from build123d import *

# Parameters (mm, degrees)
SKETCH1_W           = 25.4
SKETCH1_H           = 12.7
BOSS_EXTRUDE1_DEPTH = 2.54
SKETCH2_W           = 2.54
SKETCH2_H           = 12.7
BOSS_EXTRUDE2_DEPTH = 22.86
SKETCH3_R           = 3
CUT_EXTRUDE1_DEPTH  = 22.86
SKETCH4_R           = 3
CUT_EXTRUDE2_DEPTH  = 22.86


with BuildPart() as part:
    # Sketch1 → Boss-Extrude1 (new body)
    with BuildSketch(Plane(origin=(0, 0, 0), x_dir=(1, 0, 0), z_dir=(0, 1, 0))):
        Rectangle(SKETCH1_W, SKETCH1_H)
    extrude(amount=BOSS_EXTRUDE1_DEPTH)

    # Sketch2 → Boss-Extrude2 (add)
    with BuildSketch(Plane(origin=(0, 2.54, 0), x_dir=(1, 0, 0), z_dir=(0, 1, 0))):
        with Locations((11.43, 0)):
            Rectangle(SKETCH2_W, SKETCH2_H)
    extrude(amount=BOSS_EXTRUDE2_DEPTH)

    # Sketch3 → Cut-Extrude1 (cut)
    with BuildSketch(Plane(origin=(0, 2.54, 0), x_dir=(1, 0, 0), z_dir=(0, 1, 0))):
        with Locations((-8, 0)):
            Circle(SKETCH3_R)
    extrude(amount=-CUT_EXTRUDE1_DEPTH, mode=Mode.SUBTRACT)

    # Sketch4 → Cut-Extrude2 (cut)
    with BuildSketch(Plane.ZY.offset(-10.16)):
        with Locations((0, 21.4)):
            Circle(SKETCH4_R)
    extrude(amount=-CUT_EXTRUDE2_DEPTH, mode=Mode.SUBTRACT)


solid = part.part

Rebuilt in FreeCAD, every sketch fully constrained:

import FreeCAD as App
import Part
import Sketcher

V = App.Vector
Q = App.Units.Quantity

doc = App.newDocument("Part")
body = doc.addObject("PartDesign::Body", "Body")

# Sketch on XZ plane
sketch1 = doc.addObject("Sketcher::SketchObject", "Sketch")
body.addObject(sketch1)
sketch1.AttachmentSupport = (doc.XZ_Plane, [""])
sketch1.MapMode = "FlatFace"
sketch1.addGeometry(Part.LineSegment(V(-12.7, -6.35, 0), V(-12.7, 6.35, 0)), False)
sketch1.addGeometry(Part.LineSegment(V(-12.7, 6.35, 0), V(12.7, 6.35, 0)), False)
sketch1.addGeometry(Part.LineSegment(V(12.7, 6.35, 0), V(12.7, -6.35, 0)), False)
sketch1.addGeometry(Part.LineSegment(V(12.7, -6.35, 0), V(-12.7, -6.35, 0)), False)
sketch1.addConstraint(Sketcher.Constraint("Coincident", 0, 2, 1, 1))
sketch1.addConstraint(Sketcher.Constraint("Coincident", 1, 2, 2, 1))
sketch1.addConstraint(Sketcher.Constraint("Coincident", 2, 2, 3, 1))
sketch1.addConstraint(Sketcher.Constraint("Coincident", 3, 2, 0, 1))
sketch1.addConstraint(Sketcher.Constraint("Vertical", 0))
sketch1.addConstraint(Sketcher.Constraint("Horizontal", 1))
sketch1.addConstraint(Sketcher.Constraint("Vertical", 2))
sketch1.addConstraint(Sketcher.Constraint("Horizontal", 3))
sketch1.addConstraint(Sketcher.Constraint("Symmetric", 0, 2, 2, 2, -1, 1))
sketch1.addConstraint(Sketcher.Constraint("DistanceX", 1, 1, 1, 2, Q("1 in")))
sketch1.addConstraint(Sketcher.Constraint("DistanceY", 0, 1, 0, 2, Q("0.5 in")))
pad1 = doc.addObject("PartDesign::Pad", "Pad")
body.addObject(pad1)
pad1.Profile = sketch1
pad1.Length = Q("0.1 in")
pad1.Reversed = True

# Sketch on XZ plane
sketch2 = doc.addObject("Sketcher::SketchObject", "Sketch001")
body.addObject(sketch2)
sketch2.AttachmentSupport = (doc.XZ_Plane, [""])
sketch2.MapMode = "FlatFace"
sketch2.AttachmentOffset = App.Placement(V(0, 0, -0.1 * 25.4), App.Rotation())
sketch2.addGeometry(Part.LineSegment(V(10.16, -6.35, 0), V(10.16, 6.35, 0)), False)
sketch2.addGeometry(Part.LineSegment(V(10.16, 6.35, 0), V(12.7, 6.35, 0)), False)
sketch2.addGeometry(Part.LineSegment(V(12.7, 6.35, 0), V(12.7, -6.35, 0)), False)
sketch2.addGeometry(Part.LineSegment(V(12.7, -6.35, 0), V(10.16, -6.35, 0)), False)
sketch2.addConstraint(Sketcher.Constraint("Coincident", 0, 2, 1, 1))
sketch2.addConstraint(Sketcher.Constraint("Coincident", 1, 2, 2, 1))
sketch2.addConstraint(Sketcher.Constraint("Coincident", 2, 2, 3, 1))
sketch2.addConstraint(Sketcher.Constraint("Coincident", 3, 2, 0, 1))
sketch2.addConstraint(Sketcher.Constraint("Vertical", 0))
sketch2.addConstraint(Sketcher.Constraint("Horizontal", 1))
sketch2.addConstraint(Sketcher.Constraint("Vertical", 2))
sketch2.addConstraint(Sketcher.Constraint("Horizontal", 3))
sketch2.addConstraint(Sketcher.Constraint("DistanceX", 1, 1, 1, 2, Q("0.1 in")))
sketch2.addConstraint(Sketcher.Constraint("DistanceY", 0, 1, 0, 2, Q("0.5 in")))
sketch2.addConstraint(Sketcher.Constraint("DistanceX", -1, 1, 0, 2, Q("0.4 in")))
sketch2.addConstraint(Sketcher.Constraint("DistanceY", -1, 1, 0, 2, Q("0.25 in")))
pad2 = doc.addObject("PartDesign::Pad", "Pad001")
body.addObject(pad2)
pad2.Profile = sketch2
pad2.Length = Q("0.9 in")
pad2.Reversed = True

# Sketch on XZ plane
sketch3 = doc.addObject("Sketcher::SketchObject", "Sketch002")
body.addObject(sketch3)
sketch3.AttachmentSupport = (doc.XZ_Plane, [""])
sketch3.MapMode = "FlatFace"
sketch3.AttachmentOffset = App.Placement(V(0, 0, -0.1 * 25.4), App.Rotation())
sketch3.addGeometry(Part.Circle(V(-8, 0, 0), V(0, 0, 1), 3), False)
sketch3.addConstraint(Sketcher.Constraint("PointOnObject", 0, 3, -1))
sketch3.addConstraint(Sketcher.Constraint("Diameter", 0, Q("6 mm")))
sketch3.addConstraint(Sketcher.Constraint("DistanceX", 0, 3, -1, 1, Q("8 mm")))
pocket1 = doc.addObject("PartDesign::Pocket", "Pocket")
body.addObject(pocket1)
pocket1.Profile = sketch3
pocket1.Length = Q("0.9 in")
pocket1.Reversed = True

# Sketch on YZ plane
sketch4 = doc.addObject("Sketcher::SketchObject", "Sketch003")
body.addObject(sketch4)
sketch4.AttachmentSupport = (doc.YZ_Plane, [""])
sketch4.MapMode = "FlatFace"
sketch4.AttachmentOffset = App.Placement(V(0, 0, 0.4 * 25.4), App.Rotation())
sketch4.addGeometry(Part.Circle(V(21.4, 0, 0), V(0, 0, 1), 3), False)
sketch4.addConstraint(Sketcher.Constraint("PointOnObject", 0, 3, -1))
sketch4.addConstraint(Sketcher.Constraint("Diameter", 0, Q("6 mm")))
sketch4.addConstraint(Sketcher.Constraint("DistanceX", -1, 1, 0, 3, Q("21.4 mm")))
pocket2 = doc.addObject("PartDesign::Pocket", "Pocket001")
body.addObject(pocket2)
pocket2.Profile = sketch4
pocket2.Length = Q("0.9 in")
pocket2.Reversed = True

doc.recompute()
